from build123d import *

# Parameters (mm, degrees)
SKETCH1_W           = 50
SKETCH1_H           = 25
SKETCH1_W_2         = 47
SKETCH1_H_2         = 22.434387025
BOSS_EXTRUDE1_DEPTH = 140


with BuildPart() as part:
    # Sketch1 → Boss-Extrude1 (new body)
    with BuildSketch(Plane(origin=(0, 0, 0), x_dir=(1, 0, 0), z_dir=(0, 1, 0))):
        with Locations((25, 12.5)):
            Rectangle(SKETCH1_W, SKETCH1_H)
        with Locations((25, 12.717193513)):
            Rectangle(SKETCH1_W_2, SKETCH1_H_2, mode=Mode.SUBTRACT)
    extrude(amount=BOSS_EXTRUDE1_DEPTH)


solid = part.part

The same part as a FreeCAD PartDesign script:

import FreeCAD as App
import Part
import Sketcher
from FreeCAD import Vector

doc = App.newDocument("Part")
body = doc.addObject("PartDesign::Body", "Body")

# Sketch on XZ plane
sketch1 = body.newObject("Sketcher::SketchObject", "Sketch")
sketch1.AttachmentSupport = (doc.getObject("XZ_Plane"), [""])
sketch1.MapMode = "FlatFace"
sketch1.addGeometry(Part.LineSegment(Vector(0, -25, 0), Vector(0, 0, 0)), False)
sketch1.addGeometry(Part.LineSegment(Vector(0, 0, 0), Vector(50, 0, 0)), False)
sketch1.addGeometry(Part.LineSegment(Vector(50, 0, 0), Vector(50, -25, 0)), False)
sketch1.addGeometry(Part.LineSegment(Vector(50, -25, 0), Vector(0, -25, 0)), False)
sketch1.addGeometry(Part.LineSegment(Vector(48, -2, 0), Vector(2, -2, 0)), False)
sketch1.addGeometry(Part.LineSegment(Vector(2, -2, 0), Vector(2, -24, 0)), False)
sketch1.addGeometry(Part.LineSegment(Vector(2, -24, 0), Vector(48, -24, 0)), False)
sketch1.addGeometry(Part.LineSegment(Vector(48, -24, 0), Vector(48, -2, 0)), False)
sketch1.addConstraint(Sketcher.Constraint("Coincident", 0, 2, 1, 1))
sketch1.addConstraint(Sketcher.Constraint("Coincident", 1, 2, 2, 1))
sketch1.addConstraint(Sketcher.Constraint("Coincident", 2, 2, 3, 1))
sketch1.addConstraint(Sketcher.Constraint("Coincident", 3, 2, 0, 1))
sketch1.addConstraint(Sketcher.Constraint("Coincident", 4, 2, 5, 1))
sketch1.addConstraint(Sketcher.Constraint("Coincident", 5, 2, 6, 1))
sketch1.addConstraint(Sketcher.Constraint("Coincident", 6, 2, 7, 1))
sketch1.addConstraint(Sketcher.Constraint("Coincident", 7, 2, 4, 1))
sketch1.addConstraint(Sketcher.Constraint("Vertical", 0))
sketch1.addConstraint(Sketcher.Constraint("Horizontal", 1))
sketch1.addConstraint(Sketcher.Constraint("Vertical", 2))
sketch1.addConstraint(Sketcher.Constraint("Horizontal", 3))
sketch1.addConstraint(Sketcher.Constraint("Horizontal", 4))
sketch1.addConstraint(Sketcher.Constraint("Vertical", 5))
sketch1.addConstraint(Sketcher.Constraint("Horizontal", 6))
sketch1.addConstraint(Sketcher.Constraint("Vertical", 7))
sketch1.addConstraint(Sketcher.Constraint("Coincident", 0, 2, -1, 1))
sketch1.addConstraint(Sketcher.Constraint("DistanceX", 1, 1, 1, 2, 50.0))
sketch1.addConstraint(Sketcher.Constraint("DistanceX", 4, 2, 4, 1, 47.0))
sketch1.addConstraint(Sketcher.Constraint("DistanceY", 0, 1, 0, 2, 25.0))
sketch1.addConstraint(Sketcher.Constraint("DistanceX", -1, 1, 4, 2, 1.5))
sketch1.addConstraint(Sketcher.Constraint("DistanceY", 4, 2, -1, 1, 1.5))
sketch1.addConstraint(Sketcher.Constraint("DistanceY", 5, 2, 5, 1, 22.434387))
pad1 = body.newObject("PartDesign::Pad", "Pad")
pad1.Profile = sketch1
pad1.Length = 140
pad1.Reversed = True

doc.recompute()
